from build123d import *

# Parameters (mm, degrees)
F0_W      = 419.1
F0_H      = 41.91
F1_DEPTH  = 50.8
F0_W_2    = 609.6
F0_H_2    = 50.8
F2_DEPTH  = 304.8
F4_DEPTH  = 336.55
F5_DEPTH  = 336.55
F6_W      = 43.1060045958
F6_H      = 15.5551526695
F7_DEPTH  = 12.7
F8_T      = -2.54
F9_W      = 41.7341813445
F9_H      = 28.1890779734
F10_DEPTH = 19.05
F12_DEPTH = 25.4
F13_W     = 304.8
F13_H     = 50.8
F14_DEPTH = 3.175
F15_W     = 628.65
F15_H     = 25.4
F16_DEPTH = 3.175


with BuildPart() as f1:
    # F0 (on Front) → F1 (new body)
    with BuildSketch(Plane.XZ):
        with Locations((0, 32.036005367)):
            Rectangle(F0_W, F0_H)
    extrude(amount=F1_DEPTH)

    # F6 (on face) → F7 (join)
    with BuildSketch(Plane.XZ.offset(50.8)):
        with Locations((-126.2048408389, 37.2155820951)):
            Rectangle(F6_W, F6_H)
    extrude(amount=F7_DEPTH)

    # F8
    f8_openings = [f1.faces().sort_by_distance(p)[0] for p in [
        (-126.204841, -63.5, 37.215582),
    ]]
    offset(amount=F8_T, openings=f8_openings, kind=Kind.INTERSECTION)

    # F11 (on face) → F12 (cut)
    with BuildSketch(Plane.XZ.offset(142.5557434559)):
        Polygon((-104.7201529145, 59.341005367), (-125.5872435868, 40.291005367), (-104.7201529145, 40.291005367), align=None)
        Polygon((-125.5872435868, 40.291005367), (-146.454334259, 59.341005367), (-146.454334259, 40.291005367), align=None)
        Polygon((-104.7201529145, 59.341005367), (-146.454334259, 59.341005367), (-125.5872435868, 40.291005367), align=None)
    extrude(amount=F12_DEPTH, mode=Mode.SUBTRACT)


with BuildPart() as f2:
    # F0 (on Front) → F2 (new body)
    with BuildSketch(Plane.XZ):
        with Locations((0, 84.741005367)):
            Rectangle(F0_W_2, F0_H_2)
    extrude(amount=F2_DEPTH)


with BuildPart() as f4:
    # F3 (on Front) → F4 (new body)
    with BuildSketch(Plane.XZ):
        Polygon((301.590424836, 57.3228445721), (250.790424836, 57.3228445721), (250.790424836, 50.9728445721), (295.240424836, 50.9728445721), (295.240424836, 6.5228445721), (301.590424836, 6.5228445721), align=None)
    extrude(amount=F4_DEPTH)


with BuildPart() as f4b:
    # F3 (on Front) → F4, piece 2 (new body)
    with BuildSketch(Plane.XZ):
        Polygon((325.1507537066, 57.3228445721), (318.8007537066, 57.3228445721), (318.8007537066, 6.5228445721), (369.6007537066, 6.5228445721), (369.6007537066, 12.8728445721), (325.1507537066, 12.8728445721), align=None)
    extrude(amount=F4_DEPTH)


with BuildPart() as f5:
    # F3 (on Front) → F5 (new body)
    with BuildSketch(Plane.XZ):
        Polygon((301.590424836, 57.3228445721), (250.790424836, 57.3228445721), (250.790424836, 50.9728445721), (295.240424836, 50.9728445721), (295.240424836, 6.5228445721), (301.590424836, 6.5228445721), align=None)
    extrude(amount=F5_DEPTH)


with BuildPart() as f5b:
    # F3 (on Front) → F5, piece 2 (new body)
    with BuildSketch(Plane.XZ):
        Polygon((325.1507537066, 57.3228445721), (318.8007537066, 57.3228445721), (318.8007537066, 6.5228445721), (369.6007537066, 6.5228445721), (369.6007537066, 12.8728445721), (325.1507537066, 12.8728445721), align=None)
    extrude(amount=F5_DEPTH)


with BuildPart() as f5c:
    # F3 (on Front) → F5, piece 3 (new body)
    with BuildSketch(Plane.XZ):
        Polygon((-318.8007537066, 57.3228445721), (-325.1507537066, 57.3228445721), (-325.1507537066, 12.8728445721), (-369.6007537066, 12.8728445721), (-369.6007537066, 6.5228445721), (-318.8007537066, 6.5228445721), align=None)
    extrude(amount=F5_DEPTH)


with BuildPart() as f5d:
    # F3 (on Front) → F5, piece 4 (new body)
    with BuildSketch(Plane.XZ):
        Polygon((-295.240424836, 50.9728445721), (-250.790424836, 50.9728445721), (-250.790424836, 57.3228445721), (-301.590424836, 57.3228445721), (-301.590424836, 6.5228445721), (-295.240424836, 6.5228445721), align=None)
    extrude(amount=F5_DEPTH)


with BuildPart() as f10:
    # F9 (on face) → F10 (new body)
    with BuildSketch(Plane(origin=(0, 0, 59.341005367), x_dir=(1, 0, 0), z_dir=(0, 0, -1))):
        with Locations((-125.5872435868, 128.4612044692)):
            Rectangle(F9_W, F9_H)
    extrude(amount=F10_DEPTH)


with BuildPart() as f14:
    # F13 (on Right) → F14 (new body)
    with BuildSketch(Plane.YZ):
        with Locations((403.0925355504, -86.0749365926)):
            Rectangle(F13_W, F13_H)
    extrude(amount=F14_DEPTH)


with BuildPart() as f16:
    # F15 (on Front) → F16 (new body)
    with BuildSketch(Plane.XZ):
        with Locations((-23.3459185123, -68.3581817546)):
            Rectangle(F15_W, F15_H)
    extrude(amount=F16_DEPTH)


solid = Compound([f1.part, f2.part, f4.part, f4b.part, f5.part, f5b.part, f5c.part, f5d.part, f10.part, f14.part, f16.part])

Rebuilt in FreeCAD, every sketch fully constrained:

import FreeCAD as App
import Part
import Sketcher
Q = App.Units.Quantity


def faces_at(feature, points):
    """Names of the faces that lie closest to the given points."""
    faces = feature.Shape.Faces
    near = lambda p: min(range(len(faces)), key=lambda i: faces[i].distToShape(Part.Vertex(*p))[0])
    return sorted({f"Face{near(p) + 1}" for p in points})


def add_polygon(sketch, points):
    """Adds a closed chain of lines whose ends are joined by coincident constraints."""
    first, n = sketch.GeometryCount, len(points)
    for a, b in zip(points, points[1:] + points[:1]):
        sketch.addGeometry(Part.LineSegment(App.Vector(*a, 0), App.Vector(*b, 0)), False)
    for i in range(n):
        sketch.addConstraint(Sketcher.Constraint("Coincident", first + i, 2, first + (i + 1) % n, 1))

doc = App.newDocument("Part")
body = doc.addObject("PartDesign::Body", "Body")

sketch1 = doc.addObject("Sketcher::SketchObject", "Sketch")
body.addObject(sketch1)
sketch1.AttachmentSupport = (doc.XZ_Plane, [""])
sketch1.MapMode = "FlatFace"
add_polygon(sketch1, [(-210, 53), (-210, 11), (210, 11), (210, 53)])
sketch1.addConstraint([
    Sketcher.Constraint("Vertical", 0),
    Sketcher.Constraint("Horizontal", 1),
    Sketcher.Constraint("Vertical", 2),
    Sketcher.Constraint("Horizontal", 3),
    Sketcher.Constraint("DistanceX", 1, 1, 1, 2, Q("16.5 in")),
    Sketcher.Constraint("DistanceY", 0, 2, 0, 1, Q("1.65 in")),
    Sketcher.Constraint("DistanceX", 0, 2, -1, 1, Q("8.25 in")),
    Sketcher.Constraint("DistanceY", -1, 1, 0, 2, 11.081005),
])
pad1 = doc.addObject("PartDesign::Pad", "Pad")
body.addObject(pad1)
pad1.Profile = sketch1
pad1.Length = Q("2 in")

sketch2 = doc.addObject("Sketcher::SketchObject", "Sketch001")
body.addObject(sketch2)
sketch2.AttachmentSupport = (doc.XZ_Plane, [""])
sketch2.MapMode = "FlatFace"
sketch2.AttachmentOffset = App.Placement(App.Vector(0, 0, 2 * 25.4), App.Rotation())
add_polygon(sketch2, [(-148, 45), (-148, 29), (-105, 29), (-105, 45)])
sketch2.addConstraint([
    Sketcher.Constraint("Vertical", 0),
    Sketcher.Constraint("Horizontal", 1),
    Sketcher.Constraint("Vertical", 2),
    Sketcher.Constraint("Horizontal", 3),
    Sketcher.Constraint("DistanceX", 1, 1, 1, 2, 43.106005),
    Sketcher.Constraint("DistanceY", 0, 2, 0, 1, 15.555153),
    Sketcher.Constraint("DistanceX", 1, 2, -1, 1, 104.651839),
    Sketcher.Constraint("DistanceY", -1, 1, 2, 2, 44.993158),
])
pad2 = doc.addObject("PartDesign::Pad", "Pad001")
body.addObject(pad2)
pad2.Profile = sketch2
pad2.Length = Q("0.5 in")
doc.recompute()

thickness = doc.addObject("PartDesign::Thickness", "Thickness")
body.addObject(thickness)
thickness.Base = (pad2, faces_at(pad2, [(-126.205, -63.5, 37.216)]))
thickness.Value = Q("0.1 in")
thickness.Reversed = True
thickness.Join = "Intersection"

sketch3 = doc.addObject("Sketcher::SketchObject", "Sketch002")
body.addObject(sketch3)
sketch3.AttachmentSupport = (doc.XZ_Plane, [""])
sketch3.MapMode = "FlatFace"
sketch3.AttachmentOffset = App.Placement(App.Vector(0, 0, 142.555743), App.Rotation())
add_polygon(sketch3, [(-105, 40), (-105, 59), (-146, 59), (-146, 40)])
sketch3.addConstraint([
    Sketcher.Constraint("Vertical", 0),
    Sketcher.Constraint("Horizontal", 1),
    Sketcher.Constraint("Vertical", 2),
    Sketcher.Constraint("Horizontal", 3),
    Sketcher.Constraint("DistanceY", 0, 1, 0, 2, Q("0.75 in")),
    Sketcher.Constraint("DistanceX", 1, 2, 1, 1, 41.734181),
    Sketcher.Constraint("DistanceX", 0, 2, -1, 1, 104.720153),
    Sketcher.Constraint("DistanceY", -1, 1, 0, 2, 59.341005),
])
pocket1 = doc.addObject("PartDesign::Pocket", "Pocket")
body.addObject(pocket1)
pocket1.Profile = sketch3
pocket1.Length = Q("1 in")
pocket1.Reversed = True
body2 = doc.addObject("PartDesign::Body", "Body001")

sketch4 = doc.addObject("Sketcher::SketchObject", "Sketch003")
body2.addObject(sketch4)
sketch4.AttachmentSupport = (doc.getObject("XZ_Plane001"), [""])
sketch4.MapMode = "FlatFace"
add_polygon(sketch4, [(-305, 110), (-305, 59), (305, 59), (305, 110)])
sketch4.addConstraint([
    Sketcher.Constraint("Vertical", 0),
    Sketcher.Constraint("Horizontal", 1),
    Sketcher.Constraint("Vertical", 2),
    Sketcher.Constraint("Horizontal", 3),
    Sketcher.Constraint("DistanceX", 1, 1, 1, 2, Q("24 in")),
    Sketcher.Constraint("DistanceY", 0, 2, 0, 1, Q("2 in")),
    Sketcher.Constraint("DistanceX", 0, 2, -1, 1, Q("12 in")),
    Sketcher.Constraint("DistanceY", -1, 1, 0, 2, 59.341005),
])
pad3 = doc.addObject("PartDesign::Pad", "Pad002")
body2.addObject(pad3)
pad3.Profile = sketch4
pad3.Length = Q("12 in")
body3 = doc.addObject("PartDesign::Body", "Body002")

sketch5 = doc.addObject("Sketcher::SketchObject", "Sketch004")
body3.addObject(sketch5)
sketch5.AttachmentSupport = (doc.getObject("XZ_Plane002"), [""])
sketch5.MapMode = "FlatFace"
add_polygon(sketch5, [(302, 57), (251, 57), (251, 51), (295, 51), (295, 7), (302, 7)])
sketch5.addConstraint([
    Sketcher.Constraint("Horizontal", 0),
    Sketcher.Constraint("Vertical", 1),
    Sketcher.Constraint("Horizontal", 2),
    Sketcher.Constraint("Vertical", 3),
    Sketcher.Constraint("Horizontal", 4),
    Sketcher.Constraint("Vertical", 5),
    Sketcher.Constraint("Equal", 4, 1),
    Sketcher.Constraint("Equal", 2, 3),
    Sketcher.Constraint("DistanceX", 0, 2, 0, 1, Q("2 in")),
    Sketcher.Constraint("DistanceX", 2, 1, 2, 2, Q("1.75 in")),
    Sketcher.Constraint("DistanceX", -1, 1, 0, 2, 250.790425),
    Sketcher.Constraint("DistanceY", -1, 1, 0, 2, 57.322845),
])
pad4 = doc.addObject("PartDesign::Pad", "Pad003")
body3.addObject(pad4)
pad4.Profile = sketch5
pad4.Length = Q("13.25 in")
body4 = doc.addObject("PartDesign::Body", "Body003")

sketch6 = doc.addObject("Sketcher::SketchObject", "Sketch005")
body4.addObject(sketch6)
sketch6.AttachmentSupport = (doc.getObject("XZ_Plane003"), [""])
sketch6.MapMode = "FlatFace"
add_polygon(sketch6, [(325, 57), (319, 57), (319, 7), (370, 7), (370, 13), (325, 13)])
sketch6.addConstraint([
    Sketcher.Constraint("Horizontal", 0),
    Sketcher.Constraint("Vertical", 1),
    Sketcher.Constraint("Horizontal", 2),
    Sketcher.Constraint("Vertical", 3),
    Sketcher.Constraint("Horizontal", 4),
    Sketcher.Constraint("Vertical", 5),
    Sketcher.Constraint("Equal", 2, 1),
    Sketcher.Constraint("Equal", 0, 3),
    Sketcher.Constraint("DistanceX", 2, 1, 2, 2, Q("2 in")),
    Sketcher.Constraint("DistanceX", 0, 2, 0, 1, Q("0.25 in")),
    Sketcher.Constraint("DistanceX", -1, 1, 0, 2, 318.800754),
    Sketcher.Constraint("DistanceY", -1, 1, 0, 2, 57.322845),
])
pad5 = doc.addObject("PartDesign::Pad", "Pad004")
body4.addObject(pad5)
pad5.Profile = sketch6
pad5.Length = Q("13.25 in")
body5 = doc.addObject("PartDesign::Body", "Body004")

sketch7 = doc.addObject("Sketcher::SketchObject", "Sketch006")
body5.addObject(sketch7)
sketch7.AttachmentSupport = (doc.getObject("XZ_Plane004"), [""])
sketch7.MapMode = "FlatFace"
add_polygon(sketch7, [(302, 57), (251, 57), (251, 51), (295, 51), (295, 7), (302, 7)])
sketch7.addConstraint([
    Sketcher.Constraint("Horizontal", 0),
    Sketcher.Constraint("Vertical", 1),
    Sketcher.Constraint("Horizontal", 2),
    Sketcher.Constraint("Vertical", 3),
    Sketcher.Constraint("Horizontal", 4),
    Sketcher.Constraint("Vertical", 5),
    Sketcher.Constraint("Equal", 4, 1),
    Sketcher.Constraint("Equal", 2, 3),
    Sketcher.Constraint("DistanceX", 0, 2, 0, 1, Q("2 in")),
    Sketcher.Constraint("DistanceX", 2, 1, 2, 2, Q("1.75 in")),
    Sketcher.Constraint("DistanceX", -1, 1, 0, 2, 250.790425),
    Sketcher.Constraint("DistanceY", -1, 1, 0, 2, 57.322845),
])
pad6 = doc.addObject("PartDesign::Pad", "Pad005")
body5.addObject(pad6)
pad6.Profile = sketch7
pad6.Length = Q("13.25 in")
body6 = doc.addObject("PartDesign::Body", "Body005")

sketch8 = doc.addObject("Sketcher::SketchObject", "Sketch007")
body6.addObject(sketch8)
sketch8.AttachmentSupport = (doc.getObject("XZ_Plane005"), [""])
sketch8.MapMode = "FlatFace"
add_polygon(sketch8, [(325, 57), (319, 57), (319, 7), (370, 7), (370, 13), (325, 13)])
sketch8.addConstraint([
    Sketcher.Constraint("Horizontal", 0),
    Sketcher.Constraint("Vertical", 1),
    Sketcher.Constraint("Horizontal", 2),
    Sketcher.Constraint("Vertical", 3),
    Sketcher.Constraint("Horizontal", 4),
    Sketcher.Constraint("Vertical", 5),
    Sketcher.Constraint("Equal", 2, 1),
    Sketcher.Constraint("Equal", 0, 3),
    Sketcher.Constraint("DistanceX", 2, 1, 2, 2, Q("2 in")),
    Sketcher.Constraint("DistanceX", 0, 2, 0, 1, Q("0.25 in")),
    Sketcher.Constraint("DistanceX", -1, 1, 0, 2, 318.800754),
    Sketcher.Constraint("DistanceY", -1, 1, 0, 2, 57.322845),
])
pad7 = doc.addObject("PartDesign::Pad", "Pad006")
body6.addObject(pad7)
pad7.Profile = sketch8
pad7.Length = Q("13.25 in")
body7 = doc.addObject("PartDesign::Body", "Body006")

sketch9 = doc.addObject("Sketcher::SketchObject", "Sketch008")
body7.addObject(sketch9)
sketch9.AttachmentSupport = (doc.getObject("XZ_Plane006"), [""])
sketch9.MapMode = "FlatFace"
add_polygon(sketch9, [(-319, 57), (-325, 57), (-325, 13), (-370, 13), (-370, 7), (-319, 7)])
sketch9.addConstraint([
    Sketcher.Constraint("Horizontal", 0),
    Sketcher.Constraint("Vertical", 1),
    Sketcher.Constraint("Horizontal", 2),
    Sketcher.Constraint("Vertical", 3),
    Sketcher.Constraint("Horizontal", 4),
    Sketcher.Constraint("Vertical", 5),
    Sketcher.Constraint("Equal", 2, 1),
    Sketcher.Constraint("Equal", 0, 3),
    Sketcher.Constraint("DistanceX", 4, 1, 4, 2, Q("2 in")),
    Sketcher.Constraint("DistanceX", 0, 2, 0, 1, Q("0.25 in")),
    Sketcher.Constraint("DistanceX", 0, 2, -1, 1, 325.150754),
    Sketcher.Constraint("DistanceY", -1, 1, 0, 2, 57.322845),
])
pad8 = doc.addObject("PartDesign::Pad", "Pad007")
body7.addObject(pad8)
pad8.Profile = sketch9
pad8.Length = Q("13.25 in")
body8 = doc.addObject("PartDesign::Body", "Body007")

sketch10 = doc.addObject("Sketcher::SketchObject", "Sketch009")
body8.addObject(sketch10)
sketch10.AttachmentSupport = (doc.getObject("XZ_Plane007"), [""])
sketch10.MapMode = "FlatFace"
add_polygon(sketch10, [(-295, 51), (-251, 51), (-251, 57), (-302, 57), (-302, 7), (-295, 7)])
sketch10.addConstraint([
    Sketcher.Constraint("Horizontal", 0),
    Sketcher.Constraint("Vertical", 1),
    Sketcher.Constraint("Horizontal", 2),
    Sketcher.Constraint("Vertical", 3),
    Sketcher.Constraint("Horizontal", 4),
    Sketcher.Constraint("Vertical", 5),
    Sketcher.Constraint("Equal", 4, 1),
    Sketcher.Constraint("Equal", 2, 3),
    Sketcher.Constraint("DistanceX", 2, 2, 2, 1, Q("2 in")),
    Sketcher.Constraint("DistanceX", 0, 1, 0, 2, Q("1.75 in")),
    Sketcher.Constraint("DistanceX", 0, 2, -1, 1, 250.790425),
    Sketcher.Constraint("DistanceY", -1, 1, 0, 2, 50.972845),
])
pad9 = doc.addObject("PartDesign::Pad", "Pad008")
body8.addObject(pad9)
pad9.Profile = sketch10
pad9.Length = Q("13.25 in")
body9 = doc.addObject("PartDesign::Body", "Body008")

sketch11 = doc.addObject("Sketcher::SketchObject", "Sketch010")
body9.addObject(sketch11)
sketch11.AttachmentSupport = (doc.getObject("XY_Plane008"), [""])
sketch11.MapMode = "FlatFace"
sketch11.AttachmentOffset = App.Placement(App.Vector(0, 0, 59.341005), App.Rotation())
add_polygon(sketch11, [(-146, -143), (-146, -114), (-105, -114), (-105, -143)])
sketch11.addConstraint([
    Sketcher.Constraint("Vertical", 0),
    Sketcher.Constraint("Horizontal", 1),
    Sketcher.Constraint("Vertical", 2),
    Sketcher.Constraint("Horizontal", 3),
    Sketcher.Constraint("DistanceX", 1, 1, 1, 2, 41.734181),
    Sketcher.Constraint("DistanceY", 0, 1, 0, 2, 28.189078),
    Sketcher.Constraint("DistanceX", 0, 2, -1, 1, 146.454334),
    Sketcher.Constraint("DistanceY", 0, 2, -1, 1, 114.366665),
])
pad10 = doc.addObject("PartDesign::Pad", "Pad009")
body9.addObject(pad10)
pad10.Profile = sketch11
pad10.Length = Q("0.75 in")
pad10.Reversed = True
body10 = doc.addObject("PartDesign::Body", "Body009")

sketch12 = doc.addObject("Sketcher::SketchObject", "Sketch011")
body10.addObject(sketch12)
sketch12.AttachmentSupport = (doc.getObject("YZ_Plane009"), [""])
sketch12.MapMode = "FlatFace"
add_polygon(sketch12, [(251, -61), (251, -111), (555, -111), (555, -61)])
sketch12.addConstraint([
    Sketcher.Constraint("Vertical", 0),
    Sketcher.Constraint("Horizontal", 1),
    Sketcher.Constraint("Vertical", 2),
    Sketcher.Constraint("Horizontal", 3),
    Sketcher.Constraint("DistanceX", 1, 1, 1, 2, Q("12 in")),
    Sketcher.Constraint("DistanceY", 0, 2, 0, 1, Q("2 in")),
    Sketcher.Constraint("DistanceX", -1, 1, 0, 2, 250.692536),
    Sketcher.Constraint("DistanceY", 0, 2, -1, 1, 111.474937),
])
pad11 = doc.addObject("PartDesign::Pad", "Pad010")
body10.addObject(pad11)
pad11.Profile = sketch12
pad11.Length = Q("0.125 in")
body11 = doc.addObject("PartDesign::Body", "Body010")

sketch13 = doc.addObject("Sketcher::SketchObject", "Sketch012")
body11.addObject(sketch13)
sketch13.AttachmentSupport = (doc.getObject("XZ_Plane010"), [""])
sketch13.MapMode = "FlatFace"
add_polygon(sketch13, [(-338, -56), (-338, -81), (291, -81), (291, -56)])
sketch13.addConstraint([
    Sketcher.Constraint("Vertical", 0),
    Sketcher.Constraint("Horizontal", 1),
    Sketcher.Constraint("Vertical", 2),
    Sketcher.Constraint("Horizontal", 3),
    Sketcher.Constraint("DistanceY", 0, 2, 0, 1, Q("1 in")),
    Sketcher.Constraint("DistanceX", 1, 1, 1, 2, Q("24.75 in")),
    Sketcher.Constraint("DistanceX", 0, 2, -1, 1, 337.670919),
    Sketcher.Constraint("DistanceY", 0, 2, -1, 1, 81.058182),
])
pad12 = doc.addObject("PartDesign::Pad", "Pad011")
body11.addObject(pad12)
pad12.Profile = sketch13
pad12.Length = Q("0.125 in")

doc.recompute()
